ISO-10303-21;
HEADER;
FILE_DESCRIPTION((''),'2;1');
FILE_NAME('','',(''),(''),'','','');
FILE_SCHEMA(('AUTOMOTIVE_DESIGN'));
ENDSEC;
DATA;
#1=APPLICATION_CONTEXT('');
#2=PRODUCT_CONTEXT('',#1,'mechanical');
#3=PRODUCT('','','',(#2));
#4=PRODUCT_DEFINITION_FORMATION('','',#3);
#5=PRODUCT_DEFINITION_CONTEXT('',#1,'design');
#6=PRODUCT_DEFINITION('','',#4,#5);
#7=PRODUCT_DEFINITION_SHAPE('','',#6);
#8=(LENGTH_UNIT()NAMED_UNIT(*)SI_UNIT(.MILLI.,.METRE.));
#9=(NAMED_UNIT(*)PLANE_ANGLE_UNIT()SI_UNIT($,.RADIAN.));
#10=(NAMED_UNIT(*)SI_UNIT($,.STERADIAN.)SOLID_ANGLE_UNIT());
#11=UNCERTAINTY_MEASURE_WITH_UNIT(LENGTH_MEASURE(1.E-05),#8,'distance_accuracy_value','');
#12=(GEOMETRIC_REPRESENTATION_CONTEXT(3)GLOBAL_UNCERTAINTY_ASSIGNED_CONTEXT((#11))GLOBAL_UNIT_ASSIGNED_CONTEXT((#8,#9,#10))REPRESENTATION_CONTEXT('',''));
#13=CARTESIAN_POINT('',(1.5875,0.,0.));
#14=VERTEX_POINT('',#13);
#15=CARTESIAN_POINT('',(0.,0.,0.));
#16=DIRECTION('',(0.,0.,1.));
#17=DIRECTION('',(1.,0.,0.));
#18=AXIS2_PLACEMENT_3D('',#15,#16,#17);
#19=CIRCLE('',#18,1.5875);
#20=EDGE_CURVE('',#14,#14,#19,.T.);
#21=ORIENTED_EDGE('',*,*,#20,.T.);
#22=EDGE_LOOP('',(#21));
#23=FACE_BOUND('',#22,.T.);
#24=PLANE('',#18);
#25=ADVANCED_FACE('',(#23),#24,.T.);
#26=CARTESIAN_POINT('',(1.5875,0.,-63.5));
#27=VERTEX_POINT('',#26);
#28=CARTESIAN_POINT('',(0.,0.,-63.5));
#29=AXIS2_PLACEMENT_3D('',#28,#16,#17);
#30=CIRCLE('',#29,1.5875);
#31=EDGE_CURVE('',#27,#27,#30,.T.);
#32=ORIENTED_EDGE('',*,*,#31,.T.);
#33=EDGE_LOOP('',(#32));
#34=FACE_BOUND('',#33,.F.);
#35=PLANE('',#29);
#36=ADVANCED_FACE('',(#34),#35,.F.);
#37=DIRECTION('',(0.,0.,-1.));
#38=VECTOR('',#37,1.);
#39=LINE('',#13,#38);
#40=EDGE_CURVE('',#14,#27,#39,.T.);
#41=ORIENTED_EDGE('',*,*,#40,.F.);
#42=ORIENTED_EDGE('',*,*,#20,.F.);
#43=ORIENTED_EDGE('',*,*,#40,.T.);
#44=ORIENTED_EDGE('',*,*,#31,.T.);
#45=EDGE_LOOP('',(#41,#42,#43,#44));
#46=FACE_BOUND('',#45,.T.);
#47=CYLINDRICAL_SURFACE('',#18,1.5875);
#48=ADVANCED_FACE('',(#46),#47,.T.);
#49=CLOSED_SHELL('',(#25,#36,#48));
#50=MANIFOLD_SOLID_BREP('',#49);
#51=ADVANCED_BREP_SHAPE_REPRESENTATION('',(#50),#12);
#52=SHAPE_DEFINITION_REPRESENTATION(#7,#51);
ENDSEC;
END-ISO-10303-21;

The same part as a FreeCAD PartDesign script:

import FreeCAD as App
import Part
import Sketcher
Q = App.Units.Quantity

doc = App.newDocument("Part")
body = doc.addObject("PartDesign::Body", "Body")

sketch1 = body.newObject("Sketcher::SketchObject", "Sketch")
sketch1.AttachmentSupport = (doc.getObject("XY_Plane"), [""])
sketch1.MapMode = "FlatFace"
sketch1.addGeometry(Part.Circle(App.Vector(0, 0, 0), App.Vector(0, 0, 1), 1.6), False)
sketch1.addConstraint(Sketcher.Constraint("Coincident", 0, 3, -1, 1))
sketch1.addConstraint(Sketcher.Constraint("Diameter", 0, Q("0.125 in")))
pad1 = body.newObject("PartDesign::Pad", "Pad")
pad1.Profile = sketch1
pad1.Length = Q("2.5 in")
pad1.Reversed = True

doc.recompute()
